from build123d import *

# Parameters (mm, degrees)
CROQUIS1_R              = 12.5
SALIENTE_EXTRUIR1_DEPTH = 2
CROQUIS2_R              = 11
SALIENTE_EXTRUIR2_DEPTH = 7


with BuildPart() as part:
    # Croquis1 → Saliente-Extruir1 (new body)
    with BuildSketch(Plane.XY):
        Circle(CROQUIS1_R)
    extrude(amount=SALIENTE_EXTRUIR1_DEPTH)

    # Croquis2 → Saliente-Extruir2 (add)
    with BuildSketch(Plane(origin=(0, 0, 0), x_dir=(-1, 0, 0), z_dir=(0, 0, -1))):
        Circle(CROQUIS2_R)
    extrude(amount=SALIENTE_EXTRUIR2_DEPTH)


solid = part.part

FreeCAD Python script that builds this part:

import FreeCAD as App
import Part
import Sketcher
from FreeCAD import Vector
Q = App.Units.Quantity

doc = App.newDocument("Part")
body = doc.addObject("PartDesign::Body", "Body")

sketch1 = body.newObject("Sketcher::SketchObject", "Sketch")
sketch1.AttachmentSupport = (doc.getObject("XY_Plane"), [""])
sketch1.MapMode = "FlatFace"
sketch1.addGeometry(Part.Circle(Vector(0, 0, 0), Vector(0, 0, 1), 12), False)
sketch1.addConstraint(Sketcher.Constraint("Coincident", 0, 3, -1, 1))
sketch1.addConstraint(Sketcher.Constraint("Diameter", 0, Q("25 mm")))
pad1 = body.newObject("PartDesign::Pad", "Pad")
pad1.Profile = sketch1
pad1.Length = 2

sketch2 = body.newObject("Sketcher::SketchObject", "Sketch001")
sketch2.AttachmentSupport = (doc.getObject("XY_Plane"), [""])
sketch2.MapMode = "FlatFace"
sketch2.addGeometry(Part.Circle(Vector(0, 0, 0), Vector(0, 0, 1), 11), False)
sketch2.addConstraint(Sketcher.Constraint("Coincident", 0, 3, -1, 1))
sketch2.addConstraint(Sketcher.Constraint("Diameter", 0, Q("22 mm")))
pad2 = body.newObject("PartDesign::Pad", "Pad001")
pad2.Profile = sketch2
pad2.Length = 7
pad2.Reversed = True

doc.recompute()
